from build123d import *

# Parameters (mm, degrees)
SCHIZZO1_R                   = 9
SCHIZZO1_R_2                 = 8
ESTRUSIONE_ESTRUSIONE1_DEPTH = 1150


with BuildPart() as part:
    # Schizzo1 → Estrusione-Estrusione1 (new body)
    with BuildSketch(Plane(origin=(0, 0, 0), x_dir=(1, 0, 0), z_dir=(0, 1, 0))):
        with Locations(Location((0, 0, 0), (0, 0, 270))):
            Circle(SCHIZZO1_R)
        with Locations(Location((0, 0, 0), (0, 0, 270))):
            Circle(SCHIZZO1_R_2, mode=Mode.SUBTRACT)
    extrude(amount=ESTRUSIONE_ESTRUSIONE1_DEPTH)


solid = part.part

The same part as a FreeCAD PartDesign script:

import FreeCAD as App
import Part
import Sketcher

doc = App.newDocument("Part")
body = doc.addObject("PartDesign::Body", "Body")

# Sketch on XZ plane
sketch1 = body.newObject("Sketcher::SketchObject", "Sketch")
sketch1.AttachmentSupport = (doc.getObject("XZ_Plane"), [""])
sketch1.MapMode = "FlatFace"
sketch1.addGeometry([
    Part.Circle(App.Vector(0, 0, 0), App.Vector(0, 0, 1), 9),
    Part.Circle(App.Vector(0, 0, 0), App.Vector(0, 0, 1), 8),
], False)
sketch1.addConstraint([
    Sketcher.Constraint("Coincident", 0, 3, -1, 1),
    Sketcher.Constraint("Coincident", 1, 3, -1, 1),
    Sketcher.Constraint("Diameter", 0, 18.0),
    Sketcher.Constraint("Diameter", 1, 16.0),
])
pad1 = body.newObject("PartDesign::Pad", "Pad")
pad1.Profile = sketch1
pad1.Length = 1150
pad1.Reversed = True

doc.recompute()
